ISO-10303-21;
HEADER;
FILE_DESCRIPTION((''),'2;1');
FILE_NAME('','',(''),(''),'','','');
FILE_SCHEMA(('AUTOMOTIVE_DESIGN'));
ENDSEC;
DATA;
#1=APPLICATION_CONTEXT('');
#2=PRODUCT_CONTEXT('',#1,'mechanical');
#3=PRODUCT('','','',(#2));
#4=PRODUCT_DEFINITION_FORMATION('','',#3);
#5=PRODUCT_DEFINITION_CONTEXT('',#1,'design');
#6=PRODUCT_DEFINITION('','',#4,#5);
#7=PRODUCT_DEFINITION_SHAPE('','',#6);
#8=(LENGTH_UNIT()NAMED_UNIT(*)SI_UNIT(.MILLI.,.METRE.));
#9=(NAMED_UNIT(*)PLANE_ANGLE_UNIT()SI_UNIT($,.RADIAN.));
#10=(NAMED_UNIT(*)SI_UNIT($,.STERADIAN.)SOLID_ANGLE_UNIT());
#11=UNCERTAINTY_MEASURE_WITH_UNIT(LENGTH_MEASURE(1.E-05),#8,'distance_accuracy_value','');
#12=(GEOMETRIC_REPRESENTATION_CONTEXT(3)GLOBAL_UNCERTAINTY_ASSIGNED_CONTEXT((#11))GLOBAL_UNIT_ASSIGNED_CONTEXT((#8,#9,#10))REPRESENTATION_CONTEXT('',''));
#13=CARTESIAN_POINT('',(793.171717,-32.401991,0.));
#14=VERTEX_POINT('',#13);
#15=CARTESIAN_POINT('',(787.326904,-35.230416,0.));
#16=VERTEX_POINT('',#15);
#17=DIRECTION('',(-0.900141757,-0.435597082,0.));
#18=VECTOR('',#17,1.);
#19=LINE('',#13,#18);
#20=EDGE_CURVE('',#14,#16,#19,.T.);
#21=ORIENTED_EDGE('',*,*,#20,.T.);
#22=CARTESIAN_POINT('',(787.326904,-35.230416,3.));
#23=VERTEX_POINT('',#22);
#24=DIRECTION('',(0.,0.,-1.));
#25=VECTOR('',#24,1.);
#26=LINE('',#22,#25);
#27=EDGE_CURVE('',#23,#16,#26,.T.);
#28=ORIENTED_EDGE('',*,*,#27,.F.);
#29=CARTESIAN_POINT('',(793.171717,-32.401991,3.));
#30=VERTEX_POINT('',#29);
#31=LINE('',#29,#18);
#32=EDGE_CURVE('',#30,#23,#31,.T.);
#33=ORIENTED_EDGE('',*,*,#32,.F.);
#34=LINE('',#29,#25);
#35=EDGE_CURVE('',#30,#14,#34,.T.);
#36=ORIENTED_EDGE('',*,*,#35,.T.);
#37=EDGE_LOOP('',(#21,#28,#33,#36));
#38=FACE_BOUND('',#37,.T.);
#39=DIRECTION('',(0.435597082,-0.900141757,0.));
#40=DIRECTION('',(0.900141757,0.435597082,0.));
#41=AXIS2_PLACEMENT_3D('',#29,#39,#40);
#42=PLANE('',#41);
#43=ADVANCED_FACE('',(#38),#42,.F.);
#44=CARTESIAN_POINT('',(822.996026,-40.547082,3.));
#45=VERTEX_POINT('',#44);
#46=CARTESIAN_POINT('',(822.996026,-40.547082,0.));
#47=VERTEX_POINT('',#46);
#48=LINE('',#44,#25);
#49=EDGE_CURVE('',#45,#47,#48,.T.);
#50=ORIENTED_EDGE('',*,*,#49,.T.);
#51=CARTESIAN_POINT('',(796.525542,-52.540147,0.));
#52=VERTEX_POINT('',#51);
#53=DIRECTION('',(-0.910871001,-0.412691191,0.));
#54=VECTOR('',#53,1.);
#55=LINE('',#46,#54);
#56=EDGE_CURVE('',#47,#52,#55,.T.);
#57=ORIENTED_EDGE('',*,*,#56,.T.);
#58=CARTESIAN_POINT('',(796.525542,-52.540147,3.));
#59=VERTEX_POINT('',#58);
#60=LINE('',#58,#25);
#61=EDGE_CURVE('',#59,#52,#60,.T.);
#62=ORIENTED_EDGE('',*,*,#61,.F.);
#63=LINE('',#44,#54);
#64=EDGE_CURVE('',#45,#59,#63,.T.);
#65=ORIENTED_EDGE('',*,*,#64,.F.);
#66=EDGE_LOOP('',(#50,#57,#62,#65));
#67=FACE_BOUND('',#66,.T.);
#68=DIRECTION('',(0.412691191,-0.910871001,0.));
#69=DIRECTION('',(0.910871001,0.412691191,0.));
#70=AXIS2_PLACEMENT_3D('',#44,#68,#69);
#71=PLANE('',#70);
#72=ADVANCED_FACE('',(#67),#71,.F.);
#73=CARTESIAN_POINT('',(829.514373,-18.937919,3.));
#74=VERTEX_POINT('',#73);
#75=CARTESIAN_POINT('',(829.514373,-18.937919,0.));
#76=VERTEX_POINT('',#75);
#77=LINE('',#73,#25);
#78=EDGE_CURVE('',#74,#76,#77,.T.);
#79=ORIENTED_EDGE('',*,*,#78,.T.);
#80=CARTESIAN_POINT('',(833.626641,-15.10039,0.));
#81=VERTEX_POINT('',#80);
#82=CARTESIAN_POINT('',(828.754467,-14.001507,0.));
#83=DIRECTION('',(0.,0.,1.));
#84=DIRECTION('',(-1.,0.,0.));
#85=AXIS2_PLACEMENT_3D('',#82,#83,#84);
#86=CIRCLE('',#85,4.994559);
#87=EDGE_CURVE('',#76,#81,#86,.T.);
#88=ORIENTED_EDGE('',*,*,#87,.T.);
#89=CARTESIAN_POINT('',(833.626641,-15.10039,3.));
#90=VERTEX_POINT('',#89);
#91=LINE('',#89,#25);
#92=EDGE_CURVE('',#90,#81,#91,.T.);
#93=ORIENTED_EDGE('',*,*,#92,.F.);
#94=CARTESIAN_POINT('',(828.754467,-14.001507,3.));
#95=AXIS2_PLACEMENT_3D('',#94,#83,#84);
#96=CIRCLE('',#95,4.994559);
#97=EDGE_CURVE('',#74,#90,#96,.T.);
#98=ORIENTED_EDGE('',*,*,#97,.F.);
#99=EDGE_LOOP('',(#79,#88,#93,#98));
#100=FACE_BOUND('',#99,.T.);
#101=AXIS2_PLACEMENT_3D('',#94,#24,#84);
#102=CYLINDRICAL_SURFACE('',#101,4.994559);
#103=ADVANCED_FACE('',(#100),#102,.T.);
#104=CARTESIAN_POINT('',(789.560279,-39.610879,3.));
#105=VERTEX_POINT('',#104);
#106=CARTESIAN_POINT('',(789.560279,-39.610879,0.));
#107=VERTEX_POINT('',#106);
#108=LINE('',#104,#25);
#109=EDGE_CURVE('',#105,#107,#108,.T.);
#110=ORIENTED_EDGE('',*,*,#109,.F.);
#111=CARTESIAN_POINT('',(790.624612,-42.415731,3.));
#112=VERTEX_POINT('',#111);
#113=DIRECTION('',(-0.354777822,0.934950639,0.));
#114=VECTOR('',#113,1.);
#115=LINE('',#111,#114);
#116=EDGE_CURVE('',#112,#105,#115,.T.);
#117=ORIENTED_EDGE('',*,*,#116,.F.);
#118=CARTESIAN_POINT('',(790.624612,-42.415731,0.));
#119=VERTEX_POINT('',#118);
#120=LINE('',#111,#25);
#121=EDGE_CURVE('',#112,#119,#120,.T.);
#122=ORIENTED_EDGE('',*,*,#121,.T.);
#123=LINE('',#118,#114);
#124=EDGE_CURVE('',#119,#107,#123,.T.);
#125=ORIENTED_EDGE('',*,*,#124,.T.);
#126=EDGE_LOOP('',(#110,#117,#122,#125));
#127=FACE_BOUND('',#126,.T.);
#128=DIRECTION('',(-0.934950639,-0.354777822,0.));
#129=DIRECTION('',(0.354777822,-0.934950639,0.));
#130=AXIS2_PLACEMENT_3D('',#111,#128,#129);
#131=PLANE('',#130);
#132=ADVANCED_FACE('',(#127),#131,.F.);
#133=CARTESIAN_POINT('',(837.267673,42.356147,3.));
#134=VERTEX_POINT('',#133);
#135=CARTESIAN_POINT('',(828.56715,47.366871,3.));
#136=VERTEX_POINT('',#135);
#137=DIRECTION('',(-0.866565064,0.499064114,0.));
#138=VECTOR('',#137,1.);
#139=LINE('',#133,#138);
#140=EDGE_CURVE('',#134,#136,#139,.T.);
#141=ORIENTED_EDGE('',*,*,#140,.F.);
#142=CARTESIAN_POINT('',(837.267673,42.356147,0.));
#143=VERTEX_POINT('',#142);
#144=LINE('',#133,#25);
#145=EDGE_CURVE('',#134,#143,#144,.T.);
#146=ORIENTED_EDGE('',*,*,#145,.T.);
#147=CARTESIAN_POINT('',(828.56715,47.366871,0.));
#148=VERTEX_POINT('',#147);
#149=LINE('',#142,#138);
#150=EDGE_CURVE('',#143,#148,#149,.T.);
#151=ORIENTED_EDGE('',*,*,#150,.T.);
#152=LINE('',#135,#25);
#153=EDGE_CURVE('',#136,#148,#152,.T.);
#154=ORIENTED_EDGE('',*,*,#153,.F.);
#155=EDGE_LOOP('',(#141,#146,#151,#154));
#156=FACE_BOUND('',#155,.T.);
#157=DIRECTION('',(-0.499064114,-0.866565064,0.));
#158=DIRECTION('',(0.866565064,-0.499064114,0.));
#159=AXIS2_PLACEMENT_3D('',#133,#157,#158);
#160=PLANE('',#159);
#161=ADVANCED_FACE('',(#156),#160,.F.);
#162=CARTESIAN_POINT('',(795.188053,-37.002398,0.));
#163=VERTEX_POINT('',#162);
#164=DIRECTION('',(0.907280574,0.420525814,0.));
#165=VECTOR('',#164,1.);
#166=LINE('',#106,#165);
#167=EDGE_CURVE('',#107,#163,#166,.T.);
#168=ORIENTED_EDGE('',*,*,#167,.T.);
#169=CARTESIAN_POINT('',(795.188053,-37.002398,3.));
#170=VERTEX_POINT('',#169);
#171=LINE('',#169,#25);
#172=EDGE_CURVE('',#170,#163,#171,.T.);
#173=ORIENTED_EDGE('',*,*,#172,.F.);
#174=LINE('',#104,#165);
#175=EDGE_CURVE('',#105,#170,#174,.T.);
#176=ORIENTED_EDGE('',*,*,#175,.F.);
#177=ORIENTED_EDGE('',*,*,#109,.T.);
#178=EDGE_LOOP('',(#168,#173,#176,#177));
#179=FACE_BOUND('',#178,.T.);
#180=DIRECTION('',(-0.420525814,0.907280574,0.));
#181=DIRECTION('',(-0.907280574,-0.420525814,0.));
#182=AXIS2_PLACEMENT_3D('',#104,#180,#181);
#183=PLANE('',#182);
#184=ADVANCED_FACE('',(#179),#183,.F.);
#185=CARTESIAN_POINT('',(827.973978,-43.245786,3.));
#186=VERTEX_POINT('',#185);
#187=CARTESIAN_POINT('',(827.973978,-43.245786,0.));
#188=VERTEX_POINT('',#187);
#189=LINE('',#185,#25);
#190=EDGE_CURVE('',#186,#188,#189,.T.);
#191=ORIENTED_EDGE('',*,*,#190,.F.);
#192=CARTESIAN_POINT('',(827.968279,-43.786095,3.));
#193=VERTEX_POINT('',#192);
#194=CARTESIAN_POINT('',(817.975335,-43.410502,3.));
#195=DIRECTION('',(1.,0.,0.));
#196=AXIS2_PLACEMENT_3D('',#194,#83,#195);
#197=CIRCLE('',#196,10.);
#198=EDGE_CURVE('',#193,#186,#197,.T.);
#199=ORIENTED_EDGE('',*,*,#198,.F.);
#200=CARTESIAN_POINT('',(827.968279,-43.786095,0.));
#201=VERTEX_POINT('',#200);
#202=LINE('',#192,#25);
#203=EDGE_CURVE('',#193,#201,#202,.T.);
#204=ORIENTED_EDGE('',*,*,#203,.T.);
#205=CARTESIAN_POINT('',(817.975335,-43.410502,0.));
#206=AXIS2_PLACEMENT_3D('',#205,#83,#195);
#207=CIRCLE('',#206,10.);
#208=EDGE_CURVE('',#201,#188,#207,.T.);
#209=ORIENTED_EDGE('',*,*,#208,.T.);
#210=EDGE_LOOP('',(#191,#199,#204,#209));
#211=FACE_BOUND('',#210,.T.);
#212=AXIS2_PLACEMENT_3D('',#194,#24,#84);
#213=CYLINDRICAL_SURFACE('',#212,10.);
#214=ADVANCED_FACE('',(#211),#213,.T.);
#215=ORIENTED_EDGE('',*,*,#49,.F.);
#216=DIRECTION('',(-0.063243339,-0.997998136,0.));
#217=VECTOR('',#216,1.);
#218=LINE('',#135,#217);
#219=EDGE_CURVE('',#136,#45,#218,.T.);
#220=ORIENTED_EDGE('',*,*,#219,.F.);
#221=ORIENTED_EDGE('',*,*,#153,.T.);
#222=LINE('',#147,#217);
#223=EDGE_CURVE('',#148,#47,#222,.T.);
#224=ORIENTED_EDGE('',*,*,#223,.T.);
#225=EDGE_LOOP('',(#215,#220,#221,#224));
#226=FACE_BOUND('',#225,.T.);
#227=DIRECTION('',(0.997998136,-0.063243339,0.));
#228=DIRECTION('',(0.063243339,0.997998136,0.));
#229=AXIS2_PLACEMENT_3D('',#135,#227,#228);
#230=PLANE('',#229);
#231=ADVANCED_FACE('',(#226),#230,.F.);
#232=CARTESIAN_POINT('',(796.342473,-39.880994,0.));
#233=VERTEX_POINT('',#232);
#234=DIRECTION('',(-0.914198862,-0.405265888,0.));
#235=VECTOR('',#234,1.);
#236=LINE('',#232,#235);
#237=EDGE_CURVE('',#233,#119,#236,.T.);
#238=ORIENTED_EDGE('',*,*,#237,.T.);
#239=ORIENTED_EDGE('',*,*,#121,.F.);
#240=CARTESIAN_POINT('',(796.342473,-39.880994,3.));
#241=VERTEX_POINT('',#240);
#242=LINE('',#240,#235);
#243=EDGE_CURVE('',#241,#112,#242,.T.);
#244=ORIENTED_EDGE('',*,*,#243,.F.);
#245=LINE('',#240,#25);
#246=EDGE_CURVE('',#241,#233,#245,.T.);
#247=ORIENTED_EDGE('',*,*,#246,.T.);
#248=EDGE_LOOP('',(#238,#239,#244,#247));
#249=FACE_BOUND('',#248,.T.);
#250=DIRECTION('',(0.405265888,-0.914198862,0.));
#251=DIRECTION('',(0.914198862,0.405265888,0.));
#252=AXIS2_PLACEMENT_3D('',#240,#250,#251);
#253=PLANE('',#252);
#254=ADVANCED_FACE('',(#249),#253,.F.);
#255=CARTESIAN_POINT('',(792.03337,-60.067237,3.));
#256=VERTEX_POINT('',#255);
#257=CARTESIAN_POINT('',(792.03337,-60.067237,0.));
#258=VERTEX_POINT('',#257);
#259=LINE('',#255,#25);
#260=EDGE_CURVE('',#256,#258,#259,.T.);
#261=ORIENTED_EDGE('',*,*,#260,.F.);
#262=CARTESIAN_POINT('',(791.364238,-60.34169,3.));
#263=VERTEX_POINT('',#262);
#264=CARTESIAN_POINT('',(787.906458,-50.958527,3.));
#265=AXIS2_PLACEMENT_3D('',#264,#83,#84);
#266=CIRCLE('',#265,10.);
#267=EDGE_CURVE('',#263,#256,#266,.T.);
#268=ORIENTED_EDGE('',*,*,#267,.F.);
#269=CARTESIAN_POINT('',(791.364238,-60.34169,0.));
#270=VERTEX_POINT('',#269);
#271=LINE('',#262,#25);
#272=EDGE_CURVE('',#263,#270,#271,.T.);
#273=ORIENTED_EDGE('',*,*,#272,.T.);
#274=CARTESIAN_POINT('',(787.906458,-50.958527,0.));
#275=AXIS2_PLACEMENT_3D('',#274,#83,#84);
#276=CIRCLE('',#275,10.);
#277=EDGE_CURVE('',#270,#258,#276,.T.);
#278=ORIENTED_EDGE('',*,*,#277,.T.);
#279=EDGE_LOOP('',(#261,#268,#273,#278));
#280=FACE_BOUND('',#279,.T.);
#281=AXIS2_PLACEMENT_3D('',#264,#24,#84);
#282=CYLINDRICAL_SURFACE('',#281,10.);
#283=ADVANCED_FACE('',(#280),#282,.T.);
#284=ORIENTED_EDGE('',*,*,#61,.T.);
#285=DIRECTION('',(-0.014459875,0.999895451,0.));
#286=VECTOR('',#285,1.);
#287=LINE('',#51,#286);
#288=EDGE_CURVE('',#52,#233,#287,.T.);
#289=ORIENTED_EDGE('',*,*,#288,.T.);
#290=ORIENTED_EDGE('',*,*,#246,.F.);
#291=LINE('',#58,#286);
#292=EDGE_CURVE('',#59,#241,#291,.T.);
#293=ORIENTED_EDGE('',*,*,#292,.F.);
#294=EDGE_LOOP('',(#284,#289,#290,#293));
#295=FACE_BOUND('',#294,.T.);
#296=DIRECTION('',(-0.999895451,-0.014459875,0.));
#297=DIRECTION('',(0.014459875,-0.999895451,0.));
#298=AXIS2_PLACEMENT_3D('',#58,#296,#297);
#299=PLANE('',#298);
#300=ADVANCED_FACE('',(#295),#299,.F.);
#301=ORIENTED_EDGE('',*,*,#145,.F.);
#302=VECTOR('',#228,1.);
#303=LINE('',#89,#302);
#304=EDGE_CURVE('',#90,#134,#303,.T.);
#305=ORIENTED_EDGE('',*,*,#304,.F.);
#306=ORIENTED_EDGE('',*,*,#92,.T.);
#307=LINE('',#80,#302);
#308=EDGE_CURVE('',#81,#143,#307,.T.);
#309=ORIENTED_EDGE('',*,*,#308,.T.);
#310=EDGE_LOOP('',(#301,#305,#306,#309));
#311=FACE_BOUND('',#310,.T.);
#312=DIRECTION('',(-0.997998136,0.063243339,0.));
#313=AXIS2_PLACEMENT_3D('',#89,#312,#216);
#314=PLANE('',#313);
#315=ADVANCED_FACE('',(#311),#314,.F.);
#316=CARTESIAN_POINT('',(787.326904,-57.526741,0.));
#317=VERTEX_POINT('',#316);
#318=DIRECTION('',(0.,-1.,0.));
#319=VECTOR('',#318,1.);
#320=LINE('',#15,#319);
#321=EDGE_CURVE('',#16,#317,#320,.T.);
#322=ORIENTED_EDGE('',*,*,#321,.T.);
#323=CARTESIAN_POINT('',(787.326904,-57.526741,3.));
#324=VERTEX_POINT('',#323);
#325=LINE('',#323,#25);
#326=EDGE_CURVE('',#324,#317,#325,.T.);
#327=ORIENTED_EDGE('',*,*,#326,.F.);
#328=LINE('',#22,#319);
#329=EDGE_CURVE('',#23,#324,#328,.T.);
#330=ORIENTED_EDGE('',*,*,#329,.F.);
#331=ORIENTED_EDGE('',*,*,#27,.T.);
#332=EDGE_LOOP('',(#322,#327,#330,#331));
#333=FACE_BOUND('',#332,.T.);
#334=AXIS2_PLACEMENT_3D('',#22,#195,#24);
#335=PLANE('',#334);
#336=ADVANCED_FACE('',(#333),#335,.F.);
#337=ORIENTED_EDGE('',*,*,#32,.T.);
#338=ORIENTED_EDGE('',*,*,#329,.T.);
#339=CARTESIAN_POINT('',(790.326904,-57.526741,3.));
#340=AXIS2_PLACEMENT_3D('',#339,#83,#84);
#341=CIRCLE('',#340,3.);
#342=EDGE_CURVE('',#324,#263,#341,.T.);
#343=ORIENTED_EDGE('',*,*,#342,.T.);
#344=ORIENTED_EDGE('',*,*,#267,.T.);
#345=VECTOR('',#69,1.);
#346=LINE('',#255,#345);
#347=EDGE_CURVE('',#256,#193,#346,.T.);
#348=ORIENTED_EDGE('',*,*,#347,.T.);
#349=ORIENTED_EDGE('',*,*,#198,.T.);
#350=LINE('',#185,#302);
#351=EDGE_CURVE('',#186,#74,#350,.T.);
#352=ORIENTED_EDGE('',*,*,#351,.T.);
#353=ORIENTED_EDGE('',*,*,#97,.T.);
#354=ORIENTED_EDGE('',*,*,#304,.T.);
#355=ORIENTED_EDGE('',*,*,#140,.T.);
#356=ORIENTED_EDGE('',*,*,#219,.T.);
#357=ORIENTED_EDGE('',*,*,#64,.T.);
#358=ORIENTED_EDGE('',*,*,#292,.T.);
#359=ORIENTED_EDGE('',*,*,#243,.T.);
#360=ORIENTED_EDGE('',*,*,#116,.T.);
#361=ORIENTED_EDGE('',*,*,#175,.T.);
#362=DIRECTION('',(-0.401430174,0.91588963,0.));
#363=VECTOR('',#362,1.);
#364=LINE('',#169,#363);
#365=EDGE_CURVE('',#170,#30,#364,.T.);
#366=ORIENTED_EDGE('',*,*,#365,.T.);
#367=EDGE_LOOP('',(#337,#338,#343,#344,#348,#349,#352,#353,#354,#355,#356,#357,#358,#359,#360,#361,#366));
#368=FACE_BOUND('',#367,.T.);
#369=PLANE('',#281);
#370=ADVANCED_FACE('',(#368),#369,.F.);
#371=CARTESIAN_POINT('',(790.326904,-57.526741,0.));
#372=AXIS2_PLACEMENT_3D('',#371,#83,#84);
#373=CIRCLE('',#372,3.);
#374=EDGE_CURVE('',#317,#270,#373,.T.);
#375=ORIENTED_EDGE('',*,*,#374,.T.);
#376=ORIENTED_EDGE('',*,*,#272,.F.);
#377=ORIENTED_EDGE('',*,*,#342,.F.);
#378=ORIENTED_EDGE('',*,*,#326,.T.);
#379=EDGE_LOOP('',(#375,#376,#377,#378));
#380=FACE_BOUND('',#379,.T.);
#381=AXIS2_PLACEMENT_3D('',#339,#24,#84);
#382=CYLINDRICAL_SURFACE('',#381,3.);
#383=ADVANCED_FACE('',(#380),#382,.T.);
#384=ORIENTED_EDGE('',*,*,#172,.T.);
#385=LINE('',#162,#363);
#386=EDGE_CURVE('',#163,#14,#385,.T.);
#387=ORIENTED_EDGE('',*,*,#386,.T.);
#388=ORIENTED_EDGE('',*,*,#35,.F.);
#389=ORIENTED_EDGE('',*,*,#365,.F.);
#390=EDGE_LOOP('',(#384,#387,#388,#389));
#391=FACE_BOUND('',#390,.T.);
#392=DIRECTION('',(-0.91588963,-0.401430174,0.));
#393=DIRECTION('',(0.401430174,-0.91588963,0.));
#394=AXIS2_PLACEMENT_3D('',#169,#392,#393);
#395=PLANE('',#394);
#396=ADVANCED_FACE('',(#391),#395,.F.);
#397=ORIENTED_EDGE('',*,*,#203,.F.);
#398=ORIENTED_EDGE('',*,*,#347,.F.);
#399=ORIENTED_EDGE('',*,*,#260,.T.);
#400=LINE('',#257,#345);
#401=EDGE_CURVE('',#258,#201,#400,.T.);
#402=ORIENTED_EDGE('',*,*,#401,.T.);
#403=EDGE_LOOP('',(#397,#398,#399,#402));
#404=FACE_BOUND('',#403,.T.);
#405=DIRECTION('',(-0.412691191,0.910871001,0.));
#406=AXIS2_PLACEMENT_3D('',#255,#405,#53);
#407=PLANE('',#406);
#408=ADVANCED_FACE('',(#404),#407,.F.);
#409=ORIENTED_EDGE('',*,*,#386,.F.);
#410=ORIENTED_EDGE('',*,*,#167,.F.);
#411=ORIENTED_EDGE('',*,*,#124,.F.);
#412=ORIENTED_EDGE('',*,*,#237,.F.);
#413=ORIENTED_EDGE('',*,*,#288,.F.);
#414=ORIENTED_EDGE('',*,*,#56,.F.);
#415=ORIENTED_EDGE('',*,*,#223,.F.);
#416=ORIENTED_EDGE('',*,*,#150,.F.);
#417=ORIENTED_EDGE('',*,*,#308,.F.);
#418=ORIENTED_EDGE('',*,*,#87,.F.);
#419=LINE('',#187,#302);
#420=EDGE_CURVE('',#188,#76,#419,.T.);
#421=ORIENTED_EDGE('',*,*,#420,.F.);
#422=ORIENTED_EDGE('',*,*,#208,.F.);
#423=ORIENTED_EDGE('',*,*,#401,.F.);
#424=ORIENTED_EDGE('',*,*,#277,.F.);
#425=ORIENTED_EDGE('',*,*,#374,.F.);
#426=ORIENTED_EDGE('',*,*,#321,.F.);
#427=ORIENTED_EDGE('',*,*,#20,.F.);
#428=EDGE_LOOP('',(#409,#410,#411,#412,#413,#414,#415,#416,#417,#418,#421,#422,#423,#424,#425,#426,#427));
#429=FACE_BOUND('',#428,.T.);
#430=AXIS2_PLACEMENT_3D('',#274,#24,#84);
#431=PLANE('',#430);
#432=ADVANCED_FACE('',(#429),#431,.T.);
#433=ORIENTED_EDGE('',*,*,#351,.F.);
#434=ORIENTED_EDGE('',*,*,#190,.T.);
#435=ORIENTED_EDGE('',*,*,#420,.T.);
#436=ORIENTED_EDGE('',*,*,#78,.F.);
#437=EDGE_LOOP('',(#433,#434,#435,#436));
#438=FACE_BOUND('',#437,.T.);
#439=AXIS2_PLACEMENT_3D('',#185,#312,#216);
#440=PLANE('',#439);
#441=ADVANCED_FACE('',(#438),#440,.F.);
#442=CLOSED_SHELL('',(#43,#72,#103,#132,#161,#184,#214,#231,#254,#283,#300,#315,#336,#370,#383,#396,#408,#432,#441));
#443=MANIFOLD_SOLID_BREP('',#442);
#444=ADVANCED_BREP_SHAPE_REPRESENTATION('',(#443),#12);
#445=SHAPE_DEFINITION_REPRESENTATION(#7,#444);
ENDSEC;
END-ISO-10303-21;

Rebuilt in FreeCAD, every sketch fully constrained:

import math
import FreeCAD as App
import Part
import Sketcher
from FreeCAD import Vector
Q = App.Units.Quantity

doc = App.newDocument("Part")
params = doc.addObject("Spreadsheet::Sheet", "Params")
for row, (alias, value) in enumerate([
    ("sketch1_radius", "3 mm"),
    ("sketch1_radius2", "10.000001 mm"),
    ("sketch1_length", "3 mm"),
    ("pad1_length", "3 mm"),
], start=1):
    params.set(f"A{row}", alias)
    params.set(f"B{row}", "=" + value)
    params.setAlias(f"B{row}", alias)

body = doc.addObject("PartDesign::Body", "Body")

# Sketch on XY plane
sketch1 = body.newObject("Sketcher::SketchObject", "Sketch")
sketch1.AttachmentSupport = (doc.getObject("XY_Plane"), [""])
sketch1.MapMode = "FlatFace"
sketch1.addGeometry([
    Part.LineSegment(Vector(827.973978, -43.245786, 0), Vector(829.514373, -18.937919, 0)),  # 0
    Part.ArcOfCircle(Part.Circle(Vector(828.754467, -14.001507, 0), Vector(0, 0, 1), 4.994559), math.radians(-81.248651), math.radians(-12.709973)),  # 1
    Part.LineSegment(Vector(833.626641, -15.10039, 0), Vector(837.267673, 42.356147, 0)),  # 2
    Part.LineSegment(Vector(837.267673, 42.356147, 0), Vector(828.56715, 47.366871, 0)),  # 3
    Part.LineSegment(Vector(828.56715, 47.366871, 0), Vector(822.996026, -40.547082, 0)),  # 4
    Part.LineSegment(Vector(822.996026, -40.547082, 0), Vector(796.525542, -52.540147, 0)),  # 5
    Part.LineSegment(Vector(796.525542, -52.540147, 0), Vector(796.342473, -39.880994, 0)),  # 6
    Part.LineSegment(Vector(796.342473, -39.880994, 0), Vector(790.624612, -42.415731, 0)),  # 7
    Part.LineSegment(Vector(790.624612, -42.415731, 0), Vector(789.560279, -39.610879, 0)),  # 8
    Part.LineSegment(Vector(789.560279, -39.610879, 0), Vector(795.188053, -37.002398, 0)),  # 9
    Part.LineSegment(Vector(795.188053, -37.002398, 0), Vector(793.171717, -32.401991, 0)),  # 10
    Part.LineSegment(Vector(793.171717, -32.401991, 0), Vector(787.326904, -35.230416, 0)),  # 11
    Part.LineSegment(Vector(787.326904, -35.230416, 0), Vector(787.326904, -57.526741, 0)),  # 12
    Part.ArcOfCircle(Part.Circle(Vector(790.326904, -57.526741, 0), Vector(0, 0, 1), 3), math.radians(-180), math.radians(-69.770704)),  # 13
    Part.ArcOfCircle(Part.Circle(Vector(787.906458, -50.958526, 0), Vector(0, 0, 1), 10.000001), math.radians(-69.770704), math.radians(-65.625997)),  # 14
    Part.LineSegment(Vector(792.03337, -60.067237, 0), Vector(827.968279, -43.786095, 0)),  # 15
    Part.ArcOfCircle(Part.Circle(Vector(817.975336, -43.410502, 0), Vector(0, 0, 1), 9.999999), math.radians(-2.152492), math.radians(0.943798)),  # 16
], False)
sketch1.addConstraint([
    Sketcher.Constraint("Coincident", 0, 2, 1, 1),
    Sketcher.Constraint("Coincident", 1, 2, 2, 1),
    Sketcher.Constraint("Coincident", 2, 2, 3, 1),
    Sketcher.Constraint("Coincident", 3, 2, 4, 1),
    Sketcher.Constraint("Coincident", 4, 2, 5, 1),
    Sketcher.Constraint("Coincident", 5, 2, 6, 1),
    Sketcher.Constraint("Coincident", 6, 2, 7, 1),
    Sketcher.Constraint("Coincident", 7, 2, 8, 1),
    Sketcher.Constraint("Coincident", 8, 2, 9, 1),
    Sketcher.Constraint("Coincident", 9, 2, 10, 1),
    Sketcher.Constraint("Coincident", 10, 2, 11, 1),
    Sketcher.Constraint("Coincident", 11, 2, 12, 1),
    Sketcher.Constraint("Tangent", 12, 2, 13, 1),
    Sketcher.Constraint("Tangent", 13, 2, 14, 1),
    Sketcher.Constraint("Tangent", 14, 2, 15, 1),
    Sketcher.Constraint("Coincident", 15, 2, 16, 1),
    Sketcher.Constraint("Coincident", 16, 2, 0, 1),
    Sketcher.Constraint("Vertical", 12),
    Sketcher.Constraint("Equal", 14, 16),
    Sketcher.Constraint("Parallel", 0, 2),
    Sketcher.Constraint("Parallel", 2, 4),
    Sketcher.Constraint("Parallel", 5, 15),
    Sketcher.Constraint("Radius", 13, Q("3 mm")),
    Sketcher.Constraint("Radius", 14, Q("10.000001 mm")),
    Sketcher.Constraint("Distance", 8, Q("3 mm")),
    Sketcher.Constraint("Radius", 1, Q("4.994559 mm")),
    Sketcher.Constraint("DistanceX", 0, 2, 2, 2, Q("7.7533 mm")),
    Sketcher.Constraint("DistanceX", 15, 2, 16, 2, Q("0.005699 mm")),
    Sketcher.Constraint("Distance", 3, Q("10.040241 mm")),
    Sketcher.Constraint("Distance", 5, Q("29.060629 mm")),
    Sketcher.Constraint("Distance", 15, Q("39.45115 mm")),
    Sketcher.Constraint("DistanceY", 12, 2, 12, 1, Q("22.296325 mm")),
    Sketcher.Constraint("DistanceY", 13, 3, -1, 1, Q("57.526741 mm")),
    Sketcher.Constraint("DistanceY", 0, 2, -1, 1, Q("18.937919 mm")),
    Sketcher.Constraint("DistanceX", -1, 1, 1, 2, Q("833.626641 mm")),
    Sketcher.Constraint("DistanceY", 1, 2, -1, 1, Q("15.10039 mm")),
    Sketcher.Constraint("DistanceX", -1, 1, 3, 2, Q("828.56715 mm")),
    Sketcher.Constraint("DistanceY", -1, 1, 3, 2, Q("47.366871 mm")),
    Sketcher.Constraint("DistanceY", 4, 2, -1, 1, Q("40.547082 mm")),
    Sketcher.Constraint("DistanceX", -1, 1, 5, 2, Q("796.525542 mm")),
    Sketcher.Constraint("DistanceY", 7, 2, -1, 1, Q("42.415731 mm")),
    Sketcher.Constraint("DistanceX", -1, 1, 8, 2, Q("789.560279 mm")),
    Sketcher.Constraint("DistanceY", 8, 2, -1, 1, Q("39.610879 mm")),
    Sketcher.Constraint("DistanceY", 10, 2, -1, 1, Q("32.401991 mm")),
    Sketcher.Constraint("DistanceX", -1, 1, 13, 2, Q("791.364238 mm")),
    Sketcher.Constraint("DistanceY", 13, 2, -1, 1, Q("60.34169 mm")),
    Sketcher.Constraint("DistanceX", -1, 1, 14, 2, Q("792.03337 mm")),
    Sketcher.Constraint("DistanceX", 6, 2, 5, 2, Q("0.183069 mm")),
    Sketcher.Constraint("DistanceY", 16, 3, 6, 2, Q("3.529509 mm")),
    Sketcher.Constraint("DistanceX", 9, 2, 6, 2, Q("1.154419 mm")),
    Sketcher.Constraint("DistanceY", 8, 2, 9, 2, Q("2.608482 mm")),
    Sketcher.Constraint("DistanceX", 8, 2, 10, 2, Q("3.611438 mm")),
])
sketch1.setExpression("Constraints[22]", "Params.sketch1_radius")
sketch1.setExpression("Constraints[23]", "Params.sketch1_radius2")
sketch1.setExpression("Constraints[24]", "Params.sketch1_length")
pad1 = body.newObject("PartDesign::Pad", "Pad")
pad1.Profile = sketch1
pad1.setExpression("Length", "Params.pad1_length")

doc.recompute()
